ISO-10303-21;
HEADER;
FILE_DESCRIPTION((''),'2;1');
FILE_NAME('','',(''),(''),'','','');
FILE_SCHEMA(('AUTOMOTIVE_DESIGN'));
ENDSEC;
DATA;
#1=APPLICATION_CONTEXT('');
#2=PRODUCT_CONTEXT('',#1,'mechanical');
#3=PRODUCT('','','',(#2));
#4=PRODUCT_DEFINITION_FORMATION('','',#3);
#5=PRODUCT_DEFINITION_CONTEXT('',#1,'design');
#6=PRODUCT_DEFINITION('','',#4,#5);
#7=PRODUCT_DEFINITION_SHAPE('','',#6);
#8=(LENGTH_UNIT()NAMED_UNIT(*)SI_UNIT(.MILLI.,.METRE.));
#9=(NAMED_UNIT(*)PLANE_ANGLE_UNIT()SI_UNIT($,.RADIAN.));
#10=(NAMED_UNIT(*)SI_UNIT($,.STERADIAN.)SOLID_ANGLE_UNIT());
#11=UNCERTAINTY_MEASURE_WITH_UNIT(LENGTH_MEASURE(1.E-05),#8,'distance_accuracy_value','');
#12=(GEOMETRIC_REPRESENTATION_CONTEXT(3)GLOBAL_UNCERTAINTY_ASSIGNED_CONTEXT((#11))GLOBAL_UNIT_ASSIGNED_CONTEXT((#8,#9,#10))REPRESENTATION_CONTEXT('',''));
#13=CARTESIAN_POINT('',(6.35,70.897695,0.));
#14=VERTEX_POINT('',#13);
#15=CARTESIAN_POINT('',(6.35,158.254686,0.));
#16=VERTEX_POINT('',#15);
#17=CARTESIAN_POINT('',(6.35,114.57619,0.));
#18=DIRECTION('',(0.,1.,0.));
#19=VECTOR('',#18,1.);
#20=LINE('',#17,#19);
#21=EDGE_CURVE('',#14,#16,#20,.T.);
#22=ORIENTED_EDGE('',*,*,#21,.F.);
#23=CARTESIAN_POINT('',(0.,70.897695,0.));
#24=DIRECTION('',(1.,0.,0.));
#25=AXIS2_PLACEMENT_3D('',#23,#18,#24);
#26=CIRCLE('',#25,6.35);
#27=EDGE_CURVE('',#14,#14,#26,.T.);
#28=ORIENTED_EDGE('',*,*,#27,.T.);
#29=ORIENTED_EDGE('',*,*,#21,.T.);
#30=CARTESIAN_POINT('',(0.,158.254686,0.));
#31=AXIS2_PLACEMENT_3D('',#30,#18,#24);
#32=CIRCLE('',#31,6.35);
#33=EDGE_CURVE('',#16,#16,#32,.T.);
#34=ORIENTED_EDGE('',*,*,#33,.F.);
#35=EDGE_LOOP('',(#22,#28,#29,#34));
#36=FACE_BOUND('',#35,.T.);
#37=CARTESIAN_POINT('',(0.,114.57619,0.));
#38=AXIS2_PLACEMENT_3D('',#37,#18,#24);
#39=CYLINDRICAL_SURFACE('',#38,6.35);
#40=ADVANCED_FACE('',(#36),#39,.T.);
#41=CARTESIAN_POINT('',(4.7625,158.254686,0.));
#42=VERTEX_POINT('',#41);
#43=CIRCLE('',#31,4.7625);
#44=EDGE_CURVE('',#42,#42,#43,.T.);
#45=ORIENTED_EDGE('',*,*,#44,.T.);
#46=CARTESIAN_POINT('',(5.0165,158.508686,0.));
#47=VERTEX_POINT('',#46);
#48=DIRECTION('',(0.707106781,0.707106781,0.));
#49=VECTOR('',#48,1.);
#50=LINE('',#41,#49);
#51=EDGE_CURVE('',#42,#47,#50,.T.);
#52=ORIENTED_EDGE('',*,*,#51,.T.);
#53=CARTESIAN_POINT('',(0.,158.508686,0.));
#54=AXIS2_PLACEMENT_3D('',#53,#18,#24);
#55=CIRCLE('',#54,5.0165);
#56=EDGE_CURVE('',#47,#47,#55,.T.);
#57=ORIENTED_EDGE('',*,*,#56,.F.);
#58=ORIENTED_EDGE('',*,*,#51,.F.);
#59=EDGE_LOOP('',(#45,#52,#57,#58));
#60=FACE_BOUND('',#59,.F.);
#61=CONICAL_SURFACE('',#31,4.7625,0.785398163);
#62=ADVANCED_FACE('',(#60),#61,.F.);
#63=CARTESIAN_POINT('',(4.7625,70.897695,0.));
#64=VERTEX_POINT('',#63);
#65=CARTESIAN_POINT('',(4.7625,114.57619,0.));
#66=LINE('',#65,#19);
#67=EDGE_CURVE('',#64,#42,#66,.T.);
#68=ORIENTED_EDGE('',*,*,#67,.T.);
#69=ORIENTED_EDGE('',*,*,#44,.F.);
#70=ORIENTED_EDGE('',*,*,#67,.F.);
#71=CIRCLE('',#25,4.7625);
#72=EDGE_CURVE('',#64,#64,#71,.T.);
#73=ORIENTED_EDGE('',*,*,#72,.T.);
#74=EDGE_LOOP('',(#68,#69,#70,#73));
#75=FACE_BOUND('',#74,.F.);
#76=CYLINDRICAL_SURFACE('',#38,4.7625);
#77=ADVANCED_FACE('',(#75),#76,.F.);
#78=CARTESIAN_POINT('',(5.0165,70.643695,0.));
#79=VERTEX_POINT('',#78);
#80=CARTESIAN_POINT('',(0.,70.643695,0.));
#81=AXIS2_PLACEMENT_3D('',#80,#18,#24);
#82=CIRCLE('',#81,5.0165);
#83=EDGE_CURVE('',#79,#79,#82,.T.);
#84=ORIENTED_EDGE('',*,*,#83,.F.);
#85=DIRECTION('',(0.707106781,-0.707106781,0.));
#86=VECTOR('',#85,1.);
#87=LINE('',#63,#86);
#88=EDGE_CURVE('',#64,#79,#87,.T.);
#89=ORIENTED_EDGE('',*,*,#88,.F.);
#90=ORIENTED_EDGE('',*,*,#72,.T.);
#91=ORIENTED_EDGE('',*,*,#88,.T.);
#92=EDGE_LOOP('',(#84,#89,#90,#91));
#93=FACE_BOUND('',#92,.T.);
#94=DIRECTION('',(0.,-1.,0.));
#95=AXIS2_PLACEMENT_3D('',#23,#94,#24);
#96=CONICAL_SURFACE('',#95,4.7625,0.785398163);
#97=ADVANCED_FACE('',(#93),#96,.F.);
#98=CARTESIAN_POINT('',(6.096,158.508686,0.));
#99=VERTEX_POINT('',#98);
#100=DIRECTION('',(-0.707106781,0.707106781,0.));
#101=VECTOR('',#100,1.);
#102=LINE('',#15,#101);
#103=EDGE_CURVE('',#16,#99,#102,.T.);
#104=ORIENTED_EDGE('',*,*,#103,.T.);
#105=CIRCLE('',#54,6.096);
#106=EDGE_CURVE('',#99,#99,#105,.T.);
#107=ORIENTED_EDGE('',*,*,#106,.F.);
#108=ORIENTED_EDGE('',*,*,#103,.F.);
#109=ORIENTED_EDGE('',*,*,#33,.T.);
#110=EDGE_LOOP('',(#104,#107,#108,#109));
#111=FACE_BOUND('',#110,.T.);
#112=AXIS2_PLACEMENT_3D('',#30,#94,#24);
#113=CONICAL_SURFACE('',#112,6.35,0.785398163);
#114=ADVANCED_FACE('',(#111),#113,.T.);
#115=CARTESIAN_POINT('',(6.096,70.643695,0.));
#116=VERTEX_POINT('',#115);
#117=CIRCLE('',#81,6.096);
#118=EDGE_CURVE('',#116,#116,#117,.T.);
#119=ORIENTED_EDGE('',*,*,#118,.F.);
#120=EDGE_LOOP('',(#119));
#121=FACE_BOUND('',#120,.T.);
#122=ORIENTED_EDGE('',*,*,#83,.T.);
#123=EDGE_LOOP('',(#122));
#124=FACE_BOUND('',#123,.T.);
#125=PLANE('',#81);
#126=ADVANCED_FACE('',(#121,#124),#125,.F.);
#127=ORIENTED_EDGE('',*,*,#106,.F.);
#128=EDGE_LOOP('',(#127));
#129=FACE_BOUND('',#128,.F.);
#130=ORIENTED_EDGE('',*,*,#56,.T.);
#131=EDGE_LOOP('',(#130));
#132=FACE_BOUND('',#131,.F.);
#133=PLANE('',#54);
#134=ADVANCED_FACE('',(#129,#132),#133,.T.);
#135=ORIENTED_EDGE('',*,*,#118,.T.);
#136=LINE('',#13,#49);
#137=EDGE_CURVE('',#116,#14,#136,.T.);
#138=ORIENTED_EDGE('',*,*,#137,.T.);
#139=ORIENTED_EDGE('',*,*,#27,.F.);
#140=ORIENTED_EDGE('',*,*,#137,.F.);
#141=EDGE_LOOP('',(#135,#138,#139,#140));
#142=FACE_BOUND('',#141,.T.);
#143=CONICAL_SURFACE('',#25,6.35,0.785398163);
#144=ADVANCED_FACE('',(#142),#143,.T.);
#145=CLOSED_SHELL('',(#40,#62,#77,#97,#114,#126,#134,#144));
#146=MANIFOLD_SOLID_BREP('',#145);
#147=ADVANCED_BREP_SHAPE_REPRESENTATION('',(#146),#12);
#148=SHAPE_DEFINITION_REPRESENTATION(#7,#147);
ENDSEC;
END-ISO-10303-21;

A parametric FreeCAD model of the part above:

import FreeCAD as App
import Part
import Sketcher
from FreeCAD import Vector
Q = App.Units.Quantity


def edges_at(feature, points):
    """Names of the edges that pass closest to the given points."""
    edges = feature.Shape.Edges
    near = lambda p: min(range(len(edges)), key=lambda i: edges[i].distToShape(Part.Vertex(*p))[0])
    return sorted({f"Edge{near(p) + 1}" for p in points})


def add_polygon(sketch, points):
    """Adds a closed chain of lines whose ends are joined by coincident constraints."""
    first, n = sketch.GeometryCount, len(points)
    for a, b in zip(points, points[1:] + points[:1]):
        sketch.addGeometry(Part.LineSegment(App.Vector(*a, 0), App.Vector(*b, 0)), False)
    for i in range(n):
        sketch.addConstraint(Sketcher.Constraint("Coincident", first + i, 2, first + (i + 1) % n, 1))

doc = App.newDocument("Part")
body = doc.addObject("PartDesign::Body", "Body")

# Sketch on XY plane
sketch1 = body.newObject("Sketcher::SketchObject", "Sketch")
sketch1.AttachmentSupport = (doc.getObject("XY_Plane"), [""])
sketch1.MapMode = "FlatFace"
add_polygon(sketch1, [(4.7625, 158.508686), (4.7625, 70.643695), (6.35, 70.643695), (6.35, 158.508686)])  # lines 0-3
sketch1.addConstraint(Sketcher.Constraint("Vertical", 0))
sketch1.addConstraint(Sketcher.Constraint("Horizontal", 1))
sketch1.addConstraint(Sketcher.Constraint("Vertical", 2))
sketch1.addConstraint(Sketcher.Constraint("Horizontal", 3))
sketch1.addConstraint(Sketcher.Constraint("DistanceX", 1, 1, 1, 2, Q("0.0625 in")))
sketch1.addConstraint(Sketcher.Constraint("DistanceX", -1, 1, 1, 2, Q("0.25 in")))
sketch1.addConstraint(Sketcher.Constraint("DistanceY", 0, 2, 0, 1, 87.864991))
sketch1.addConstraint(Sketcher.Constraint("DistanceY", -1, 1, 0, 2, 70.643695))
revolution = body.newObject("PartDesign::Revolution", "Revolution")
revolution.Profile = sketch1
revolution.ReferenceAxis = (sketch1, ["V_Axis"])
revolution.Angle = 360
doc.recompute()

chamfer = body.newObject("PartDesign::Chamfer", "Chamfer")
chamfer.Base = (revolution, edges_at(revolution, [
    (-6.35, 70.644, 0),
    (-6.35, 158.509, 0),
    (-4.763, 158.509, 0),
    (-4.763, 70.644, 0),
]))
chamfer.Size = Q("0.01 in")

doc.recompute()
